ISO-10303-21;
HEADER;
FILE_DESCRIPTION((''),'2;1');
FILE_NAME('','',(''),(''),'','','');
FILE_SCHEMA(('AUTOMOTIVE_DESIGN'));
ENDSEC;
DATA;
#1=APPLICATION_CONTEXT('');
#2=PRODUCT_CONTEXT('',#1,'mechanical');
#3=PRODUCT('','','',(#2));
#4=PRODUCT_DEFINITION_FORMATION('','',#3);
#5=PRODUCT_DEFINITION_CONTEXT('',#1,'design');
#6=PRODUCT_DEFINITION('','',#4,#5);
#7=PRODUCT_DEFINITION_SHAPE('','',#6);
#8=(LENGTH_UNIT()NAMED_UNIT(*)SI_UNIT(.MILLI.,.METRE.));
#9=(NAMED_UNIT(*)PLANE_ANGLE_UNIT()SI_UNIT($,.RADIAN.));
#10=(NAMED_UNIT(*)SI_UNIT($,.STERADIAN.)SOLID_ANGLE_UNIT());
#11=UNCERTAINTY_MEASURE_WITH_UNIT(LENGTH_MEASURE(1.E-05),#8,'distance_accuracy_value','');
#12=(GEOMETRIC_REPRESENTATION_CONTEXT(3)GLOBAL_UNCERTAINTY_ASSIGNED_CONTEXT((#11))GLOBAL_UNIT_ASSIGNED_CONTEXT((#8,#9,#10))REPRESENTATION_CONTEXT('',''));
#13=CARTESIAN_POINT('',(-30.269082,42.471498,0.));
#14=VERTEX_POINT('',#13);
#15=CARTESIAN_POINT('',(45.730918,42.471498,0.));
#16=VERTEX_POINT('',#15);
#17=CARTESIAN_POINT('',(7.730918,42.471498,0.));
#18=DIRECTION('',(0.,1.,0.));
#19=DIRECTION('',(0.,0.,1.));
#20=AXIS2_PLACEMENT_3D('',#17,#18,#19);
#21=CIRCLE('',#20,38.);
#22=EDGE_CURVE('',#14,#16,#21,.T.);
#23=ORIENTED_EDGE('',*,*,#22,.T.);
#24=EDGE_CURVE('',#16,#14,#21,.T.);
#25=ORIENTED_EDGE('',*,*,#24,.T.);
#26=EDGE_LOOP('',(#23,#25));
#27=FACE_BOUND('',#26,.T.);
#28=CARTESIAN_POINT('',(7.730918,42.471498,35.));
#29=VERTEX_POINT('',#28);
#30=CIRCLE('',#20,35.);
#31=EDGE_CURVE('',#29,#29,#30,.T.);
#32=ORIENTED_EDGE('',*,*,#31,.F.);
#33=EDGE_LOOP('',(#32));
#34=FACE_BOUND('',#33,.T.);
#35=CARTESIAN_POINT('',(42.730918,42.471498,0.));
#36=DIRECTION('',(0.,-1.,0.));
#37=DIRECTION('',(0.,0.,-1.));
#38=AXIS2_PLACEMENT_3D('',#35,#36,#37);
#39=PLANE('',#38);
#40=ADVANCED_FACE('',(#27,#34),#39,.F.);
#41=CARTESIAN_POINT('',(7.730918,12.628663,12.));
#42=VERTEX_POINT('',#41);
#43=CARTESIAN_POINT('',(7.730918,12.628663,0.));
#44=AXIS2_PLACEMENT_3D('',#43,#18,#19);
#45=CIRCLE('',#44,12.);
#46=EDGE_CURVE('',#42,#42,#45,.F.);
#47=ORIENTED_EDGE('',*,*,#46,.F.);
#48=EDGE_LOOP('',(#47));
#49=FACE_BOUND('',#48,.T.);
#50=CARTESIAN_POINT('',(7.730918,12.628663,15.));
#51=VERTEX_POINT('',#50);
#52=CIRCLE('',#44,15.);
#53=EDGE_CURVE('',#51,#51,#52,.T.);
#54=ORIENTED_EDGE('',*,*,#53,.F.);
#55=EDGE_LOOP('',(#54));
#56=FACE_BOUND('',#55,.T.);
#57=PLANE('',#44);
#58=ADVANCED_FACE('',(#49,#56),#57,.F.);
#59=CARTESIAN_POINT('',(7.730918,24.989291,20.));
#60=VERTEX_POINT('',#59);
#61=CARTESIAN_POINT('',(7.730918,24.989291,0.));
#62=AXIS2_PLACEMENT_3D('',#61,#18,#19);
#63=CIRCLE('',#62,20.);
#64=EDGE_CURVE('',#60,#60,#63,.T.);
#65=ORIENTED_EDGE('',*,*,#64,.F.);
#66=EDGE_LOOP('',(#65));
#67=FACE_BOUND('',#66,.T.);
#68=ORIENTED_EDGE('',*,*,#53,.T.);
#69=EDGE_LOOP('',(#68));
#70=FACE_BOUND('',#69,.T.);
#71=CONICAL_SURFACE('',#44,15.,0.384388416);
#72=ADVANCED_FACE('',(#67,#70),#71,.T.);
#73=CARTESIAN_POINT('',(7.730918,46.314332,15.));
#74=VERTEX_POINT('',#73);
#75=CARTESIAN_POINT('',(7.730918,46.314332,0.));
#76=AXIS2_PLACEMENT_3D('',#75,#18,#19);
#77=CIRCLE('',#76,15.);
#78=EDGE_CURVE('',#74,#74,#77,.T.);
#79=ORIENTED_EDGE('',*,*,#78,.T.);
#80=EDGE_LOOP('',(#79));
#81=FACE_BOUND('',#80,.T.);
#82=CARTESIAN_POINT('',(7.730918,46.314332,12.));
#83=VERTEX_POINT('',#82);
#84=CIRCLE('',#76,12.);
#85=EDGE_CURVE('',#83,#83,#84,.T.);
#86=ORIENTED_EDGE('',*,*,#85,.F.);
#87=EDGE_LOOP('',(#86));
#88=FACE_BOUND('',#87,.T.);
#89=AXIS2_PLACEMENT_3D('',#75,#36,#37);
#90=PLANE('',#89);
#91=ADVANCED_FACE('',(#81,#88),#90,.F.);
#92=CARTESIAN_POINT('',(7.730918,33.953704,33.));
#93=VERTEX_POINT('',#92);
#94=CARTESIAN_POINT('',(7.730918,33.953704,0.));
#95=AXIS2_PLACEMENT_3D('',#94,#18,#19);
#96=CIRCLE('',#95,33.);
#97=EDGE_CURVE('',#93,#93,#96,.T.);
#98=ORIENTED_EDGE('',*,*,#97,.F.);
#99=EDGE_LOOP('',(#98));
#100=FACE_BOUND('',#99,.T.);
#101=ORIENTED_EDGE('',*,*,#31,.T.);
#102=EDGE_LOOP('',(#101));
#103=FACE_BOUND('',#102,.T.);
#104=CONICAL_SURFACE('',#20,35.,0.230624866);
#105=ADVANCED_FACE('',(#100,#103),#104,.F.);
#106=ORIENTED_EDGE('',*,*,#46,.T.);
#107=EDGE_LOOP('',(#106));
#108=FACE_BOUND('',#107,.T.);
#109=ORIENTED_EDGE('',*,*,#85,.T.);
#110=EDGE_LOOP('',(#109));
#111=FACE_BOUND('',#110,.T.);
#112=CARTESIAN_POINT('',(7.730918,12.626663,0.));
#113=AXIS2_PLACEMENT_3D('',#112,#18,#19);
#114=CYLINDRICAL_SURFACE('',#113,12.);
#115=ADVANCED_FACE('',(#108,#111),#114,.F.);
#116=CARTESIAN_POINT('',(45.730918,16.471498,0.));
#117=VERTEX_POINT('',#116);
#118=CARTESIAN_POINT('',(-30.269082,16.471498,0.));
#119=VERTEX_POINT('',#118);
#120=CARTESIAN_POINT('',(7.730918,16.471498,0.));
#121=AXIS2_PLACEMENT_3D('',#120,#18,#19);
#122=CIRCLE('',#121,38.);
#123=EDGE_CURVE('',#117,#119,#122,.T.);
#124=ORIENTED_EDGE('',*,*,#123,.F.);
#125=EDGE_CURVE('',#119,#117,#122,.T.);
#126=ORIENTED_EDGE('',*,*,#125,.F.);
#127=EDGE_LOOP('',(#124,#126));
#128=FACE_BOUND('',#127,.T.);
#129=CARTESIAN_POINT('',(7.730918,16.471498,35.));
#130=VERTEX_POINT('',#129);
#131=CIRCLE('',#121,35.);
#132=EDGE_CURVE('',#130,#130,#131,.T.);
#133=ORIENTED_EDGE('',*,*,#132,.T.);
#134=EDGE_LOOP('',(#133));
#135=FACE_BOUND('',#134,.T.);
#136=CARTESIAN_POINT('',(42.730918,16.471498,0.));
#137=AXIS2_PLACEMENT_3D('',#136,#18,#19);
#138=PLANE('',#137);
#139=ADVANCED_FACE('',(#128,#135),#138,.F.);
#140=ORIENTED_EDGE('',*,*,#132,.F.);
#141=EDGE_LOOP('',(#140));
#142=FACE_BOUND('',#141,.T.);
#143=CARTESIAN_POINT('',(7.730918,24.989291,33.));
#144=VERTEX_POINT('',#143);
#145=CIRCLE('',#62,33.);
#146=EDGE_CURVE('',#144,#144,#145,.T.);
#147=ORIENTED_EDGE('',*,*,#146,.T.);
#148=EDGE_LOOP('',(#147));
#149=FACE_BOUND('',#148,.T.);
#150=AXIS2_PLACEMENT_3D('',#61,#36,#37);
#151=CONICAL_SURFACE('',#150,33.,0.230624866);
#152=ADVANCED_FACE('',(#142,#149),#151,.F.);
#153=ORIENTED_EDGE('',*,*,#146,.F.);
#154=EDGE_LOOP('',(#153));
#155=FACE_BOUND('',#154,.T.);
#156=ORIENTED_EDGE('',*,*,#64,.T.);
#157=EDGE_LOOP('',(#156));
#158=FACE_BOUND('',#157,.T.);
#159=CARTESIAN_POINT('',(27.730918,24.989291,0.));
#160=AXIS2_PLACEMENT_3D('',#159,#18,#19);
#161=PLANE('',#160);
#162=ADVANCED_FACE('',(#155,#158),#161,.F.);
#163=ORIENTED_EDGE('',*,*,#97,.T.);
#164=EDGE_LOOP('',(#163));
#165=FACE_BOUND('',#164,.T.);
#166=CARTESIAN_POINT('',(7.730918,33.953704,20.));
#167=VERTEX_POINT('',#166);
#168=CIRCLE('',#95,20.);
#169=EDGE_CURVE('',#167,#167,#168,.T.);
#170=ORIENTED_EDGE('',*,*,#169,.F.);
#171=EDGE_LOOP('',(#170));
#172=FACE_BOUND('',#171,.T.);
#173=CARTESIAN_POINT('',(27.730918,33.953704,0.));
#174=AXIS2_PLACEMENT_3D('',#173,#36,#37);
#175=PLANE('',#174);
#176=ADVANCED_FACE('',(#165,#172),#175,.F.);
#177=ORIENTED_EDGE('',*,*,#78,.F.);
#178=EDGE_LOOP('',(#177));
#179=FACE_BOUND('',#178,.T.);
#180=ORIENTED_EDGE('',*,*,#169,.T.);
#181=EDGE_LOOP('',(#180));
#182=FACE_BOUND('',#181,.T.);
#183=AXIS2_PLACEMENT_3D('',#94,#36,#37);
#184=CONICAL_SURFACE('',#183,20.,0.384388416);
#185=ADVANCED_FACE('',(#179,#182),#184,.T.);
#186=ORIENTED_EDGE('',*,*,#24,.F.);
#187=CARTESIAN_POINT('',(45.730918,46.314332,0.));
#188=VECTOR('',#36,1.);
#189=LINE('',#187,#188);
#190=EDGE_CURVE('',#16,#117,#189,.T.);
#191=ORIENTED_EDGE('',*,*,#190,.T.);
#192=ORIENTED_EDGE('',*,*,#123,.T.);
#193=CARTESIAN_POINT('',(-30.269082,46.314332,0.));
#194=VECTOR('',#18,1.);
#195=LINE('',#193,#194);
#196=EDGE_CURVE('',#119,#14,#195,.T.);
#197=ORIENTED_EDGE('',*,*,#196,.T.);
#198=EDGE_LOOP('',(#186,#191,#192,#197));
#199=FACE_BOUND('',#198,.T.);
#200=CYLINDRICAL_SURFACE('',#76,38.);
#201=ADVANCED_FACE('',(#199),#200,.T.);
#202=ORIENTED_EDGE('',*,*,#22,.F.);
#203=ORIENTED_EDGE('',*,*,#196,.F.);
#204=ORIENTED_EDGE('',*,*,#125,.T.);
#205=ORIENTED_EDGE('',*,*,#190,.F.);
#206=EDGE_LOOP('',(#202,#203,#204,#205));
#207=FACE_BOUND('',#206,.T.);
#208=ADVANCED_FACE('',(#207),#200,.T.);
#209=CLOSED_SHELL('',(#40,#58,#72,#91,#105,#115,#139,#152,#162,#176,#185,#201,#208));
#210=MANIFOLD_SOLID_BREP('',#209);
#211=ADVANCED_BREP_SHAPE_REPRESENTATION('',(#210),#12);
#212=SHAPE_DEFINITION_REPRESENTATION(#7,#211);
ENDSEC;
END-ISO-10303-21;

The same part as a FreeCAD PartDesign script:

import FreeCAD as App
import Part
import Sketcher

doc = App.newDocument("Part")
body = doc.addObject("PartDesign::Body", "Body")

sketch1 = body.newObject("Sketcher::SketchObject", "Sketch")
sketch1.AttachmentSupport = (doc.getObject("XY_Plane"), [""])
sketch1.MapMode = "FlatFace"
sketch1.addGeometry([
    Part.LineSegment(App.Vector(7.730918, 46.314332, 0), App.Vector(7.730918, 12.628663, 0)),
    Part.LineSegment(App.Vector(7.730918, 12.628663, 0), App.Vector(22.730918, 12.628663, 0)),
    Part.LineSegment(App.Vector(22.730918, 12.628663, 0), App.Vector(27.730918, 24.989291, 0)),
    Part.LineSegment(App.Vector(27.730918, 24.989291, 0), App.Vector(40.730918, 24.989291, 0)),
    Part.LineSegment(App.Vector(40.730918, 24.989291, 0), App.Vector(42.730918, 16.471498, 0)),
    Part.LineSegment(App.Vector(42.730918, 16.471498, 0), App.Vector(45.730918, 16.471498, 0)),
    Part.LineSegment(App.Vector(45.730918, 16.471498, 0), App.Vector(45.730918, 42.471498, 0)),
    Part.LineSegment(App.Vector(45.730918, 42.471498, 0), App.Vector(42.730918, 42.471498, 0)),
    Part.LineSegment(App.Vector(42.730918, 42.471498, 0), App.Vector(40.730918, 33.953704, 0)),
    Part.LineSegment(App.Vector(40.730918, 33.953704, 0), App.Vector(27.730918, 33.953704, 0)),
    Part.LineSegment(App.Vector(27.730918, 33.953704, 0), App.Vector(22.730918, 46.314332, 0)),
    Part.LineSegment(App.Vector(22.730918, 46.314332, 0), App.Vector(7.730918, 46.314332, 0)),
], False)
sketch1.addGeometry(Part.LineSegment(App.Vector(7.730918, 46.314332, 0), App.Vector(7.730918, 12.628663, 0)), True)
sketch1.addConstraint([
    Sketcher.Constraint("Coincident", 0, 2, 1, 1),
    Sketcher.Constraint("Coincident", 1, 2, 2, 1),
    Sketcher.Constraint("Coincident", 2, 2, 3, 1),
    Sketcher.Constraint("Coincident", 3, 2, 4, 1),
    Sketcher.Constraint("Coincident", 4, 2, 5, 1),
    Sketcher.Constraint("Coincident", 5, 2, 6, 1),
    Sketcher.Constraint("Coincident", 6, 2, 7, 1),
    Sketcher.Constraint("Coincident", 7, 2, 8, 1),
    Sketcher.Constraint("Coincident", 8, 2, 9, 1),
    Sketcher.Constraint("Coincident", 9, 2, 10, 1),
    Sketcher.Constraint("Coincident", 10, 2, 11, 1),
    Sketcher.Constraint("Coincident", 11, 2, 0, 1),
    Sketcher.Constraint("Vertical", 0),
    Sketcher.Constraint("Horizontal", 1),
    Sketcher.Constraint("Horizontal", 3),
    Sketcher.Constraint("Horizontal", 5),
    Sketcher.Constraint("Vertical", 6),
    Sketcher.Constraint("Horizontal", 7),
    Sketcher.Constraint("Horizontal", 9),
    Sketcher.Constraint("Horizontal", 11),
    Sketcher.Constraint("Vertical", 12),
    Sketcher.Constraint("Coincident", 12, 1, 11, 2),
    Sketcher.Constraint("Horizontal", 1, 2, 12, 2),
    Sketcher.Constraint("Vertical", 4, 2, 7, 2),
    Sketcher.Constraint("Vertical", 3, 2, 8, 2),
    Sketcher.Constraint("Vertical", 2, 2, 9, 2),
    Sketcher.Constraint("Vertical", 1, 2, 10, 2),
    Sketcher.Constraint("Equal", 4, 8),
    Sketcher.Constraint("Equal", 2, 10),
    Sketcher.Constraint("DistanceX", 1, 1, 1, 2, 15.0),
    Sketcher.Constraint("DistanceX", 3, 1, 3, 2, 13.0),
    Sketcher.Constraint("DistanceX", 5, 1, 5, 2, 3.0),
    Sketcher.Constraint("DistanceY", 6, 1, 6, 2, 26.0),
    Sketcher.Constraint("DistanceX", 1, 2, 2, 2, 5.0),
    Sketcher.Constraint("DistanceX", 3, 2, 4, 2, 2.0),
    Sketcher.Constraint("DistanceY", 0, 2, 0, 1, 33.685668),
    Sketcher.Constraint("Distance", 2, 13.333609),
    Sketcher.Constraint("DistanceY", -1, 1, 2, 2, 24.989291),
    Sketcher.Constraint("DistanceX", -1, 1, 0, 2, 7.730918),
])
revolution = body.newObject("PartDesign::Revolution", "Revolution")
revolution.Profile = sketch1
revolution.ReferenceAxis = (sketch1, ["Axis0"])
revolution.Angle = 360

sketch2 = body.newObject("Sketcher::SketchObject", "Sketch001")
sketch2.AttachmentSupport = (doc.getObject("XZ_Plane"), [""])
sketch2.MapMode = "FlatFace"
sketch2.AttachmentOffset = App.Placement(App.Vector(0, 0, -46.314332), App.Rotation())
sketch2.addGeometry(Part.Circle(App.Vector(7.730918, 0, 0), App.Vector(0, 0, 1), 12), False)
sketch2.addConstraint([
    Sketcher.Constraint("PointOnObject", 0, 3, -1),
    Sketcher.Constraint("Diameter", 0, 24.0),
    Sketcher.Constraint("DistanceX", -1, 1, 0, 3, 7.730918),
])
pocket1 = body.newObject("PartDesign::Pocket", "Pocket")
pocket1.Profile = sketch2
pocket1.Type = "UpToFirst"
pocket1.Reversed = True

doc.recompute()
